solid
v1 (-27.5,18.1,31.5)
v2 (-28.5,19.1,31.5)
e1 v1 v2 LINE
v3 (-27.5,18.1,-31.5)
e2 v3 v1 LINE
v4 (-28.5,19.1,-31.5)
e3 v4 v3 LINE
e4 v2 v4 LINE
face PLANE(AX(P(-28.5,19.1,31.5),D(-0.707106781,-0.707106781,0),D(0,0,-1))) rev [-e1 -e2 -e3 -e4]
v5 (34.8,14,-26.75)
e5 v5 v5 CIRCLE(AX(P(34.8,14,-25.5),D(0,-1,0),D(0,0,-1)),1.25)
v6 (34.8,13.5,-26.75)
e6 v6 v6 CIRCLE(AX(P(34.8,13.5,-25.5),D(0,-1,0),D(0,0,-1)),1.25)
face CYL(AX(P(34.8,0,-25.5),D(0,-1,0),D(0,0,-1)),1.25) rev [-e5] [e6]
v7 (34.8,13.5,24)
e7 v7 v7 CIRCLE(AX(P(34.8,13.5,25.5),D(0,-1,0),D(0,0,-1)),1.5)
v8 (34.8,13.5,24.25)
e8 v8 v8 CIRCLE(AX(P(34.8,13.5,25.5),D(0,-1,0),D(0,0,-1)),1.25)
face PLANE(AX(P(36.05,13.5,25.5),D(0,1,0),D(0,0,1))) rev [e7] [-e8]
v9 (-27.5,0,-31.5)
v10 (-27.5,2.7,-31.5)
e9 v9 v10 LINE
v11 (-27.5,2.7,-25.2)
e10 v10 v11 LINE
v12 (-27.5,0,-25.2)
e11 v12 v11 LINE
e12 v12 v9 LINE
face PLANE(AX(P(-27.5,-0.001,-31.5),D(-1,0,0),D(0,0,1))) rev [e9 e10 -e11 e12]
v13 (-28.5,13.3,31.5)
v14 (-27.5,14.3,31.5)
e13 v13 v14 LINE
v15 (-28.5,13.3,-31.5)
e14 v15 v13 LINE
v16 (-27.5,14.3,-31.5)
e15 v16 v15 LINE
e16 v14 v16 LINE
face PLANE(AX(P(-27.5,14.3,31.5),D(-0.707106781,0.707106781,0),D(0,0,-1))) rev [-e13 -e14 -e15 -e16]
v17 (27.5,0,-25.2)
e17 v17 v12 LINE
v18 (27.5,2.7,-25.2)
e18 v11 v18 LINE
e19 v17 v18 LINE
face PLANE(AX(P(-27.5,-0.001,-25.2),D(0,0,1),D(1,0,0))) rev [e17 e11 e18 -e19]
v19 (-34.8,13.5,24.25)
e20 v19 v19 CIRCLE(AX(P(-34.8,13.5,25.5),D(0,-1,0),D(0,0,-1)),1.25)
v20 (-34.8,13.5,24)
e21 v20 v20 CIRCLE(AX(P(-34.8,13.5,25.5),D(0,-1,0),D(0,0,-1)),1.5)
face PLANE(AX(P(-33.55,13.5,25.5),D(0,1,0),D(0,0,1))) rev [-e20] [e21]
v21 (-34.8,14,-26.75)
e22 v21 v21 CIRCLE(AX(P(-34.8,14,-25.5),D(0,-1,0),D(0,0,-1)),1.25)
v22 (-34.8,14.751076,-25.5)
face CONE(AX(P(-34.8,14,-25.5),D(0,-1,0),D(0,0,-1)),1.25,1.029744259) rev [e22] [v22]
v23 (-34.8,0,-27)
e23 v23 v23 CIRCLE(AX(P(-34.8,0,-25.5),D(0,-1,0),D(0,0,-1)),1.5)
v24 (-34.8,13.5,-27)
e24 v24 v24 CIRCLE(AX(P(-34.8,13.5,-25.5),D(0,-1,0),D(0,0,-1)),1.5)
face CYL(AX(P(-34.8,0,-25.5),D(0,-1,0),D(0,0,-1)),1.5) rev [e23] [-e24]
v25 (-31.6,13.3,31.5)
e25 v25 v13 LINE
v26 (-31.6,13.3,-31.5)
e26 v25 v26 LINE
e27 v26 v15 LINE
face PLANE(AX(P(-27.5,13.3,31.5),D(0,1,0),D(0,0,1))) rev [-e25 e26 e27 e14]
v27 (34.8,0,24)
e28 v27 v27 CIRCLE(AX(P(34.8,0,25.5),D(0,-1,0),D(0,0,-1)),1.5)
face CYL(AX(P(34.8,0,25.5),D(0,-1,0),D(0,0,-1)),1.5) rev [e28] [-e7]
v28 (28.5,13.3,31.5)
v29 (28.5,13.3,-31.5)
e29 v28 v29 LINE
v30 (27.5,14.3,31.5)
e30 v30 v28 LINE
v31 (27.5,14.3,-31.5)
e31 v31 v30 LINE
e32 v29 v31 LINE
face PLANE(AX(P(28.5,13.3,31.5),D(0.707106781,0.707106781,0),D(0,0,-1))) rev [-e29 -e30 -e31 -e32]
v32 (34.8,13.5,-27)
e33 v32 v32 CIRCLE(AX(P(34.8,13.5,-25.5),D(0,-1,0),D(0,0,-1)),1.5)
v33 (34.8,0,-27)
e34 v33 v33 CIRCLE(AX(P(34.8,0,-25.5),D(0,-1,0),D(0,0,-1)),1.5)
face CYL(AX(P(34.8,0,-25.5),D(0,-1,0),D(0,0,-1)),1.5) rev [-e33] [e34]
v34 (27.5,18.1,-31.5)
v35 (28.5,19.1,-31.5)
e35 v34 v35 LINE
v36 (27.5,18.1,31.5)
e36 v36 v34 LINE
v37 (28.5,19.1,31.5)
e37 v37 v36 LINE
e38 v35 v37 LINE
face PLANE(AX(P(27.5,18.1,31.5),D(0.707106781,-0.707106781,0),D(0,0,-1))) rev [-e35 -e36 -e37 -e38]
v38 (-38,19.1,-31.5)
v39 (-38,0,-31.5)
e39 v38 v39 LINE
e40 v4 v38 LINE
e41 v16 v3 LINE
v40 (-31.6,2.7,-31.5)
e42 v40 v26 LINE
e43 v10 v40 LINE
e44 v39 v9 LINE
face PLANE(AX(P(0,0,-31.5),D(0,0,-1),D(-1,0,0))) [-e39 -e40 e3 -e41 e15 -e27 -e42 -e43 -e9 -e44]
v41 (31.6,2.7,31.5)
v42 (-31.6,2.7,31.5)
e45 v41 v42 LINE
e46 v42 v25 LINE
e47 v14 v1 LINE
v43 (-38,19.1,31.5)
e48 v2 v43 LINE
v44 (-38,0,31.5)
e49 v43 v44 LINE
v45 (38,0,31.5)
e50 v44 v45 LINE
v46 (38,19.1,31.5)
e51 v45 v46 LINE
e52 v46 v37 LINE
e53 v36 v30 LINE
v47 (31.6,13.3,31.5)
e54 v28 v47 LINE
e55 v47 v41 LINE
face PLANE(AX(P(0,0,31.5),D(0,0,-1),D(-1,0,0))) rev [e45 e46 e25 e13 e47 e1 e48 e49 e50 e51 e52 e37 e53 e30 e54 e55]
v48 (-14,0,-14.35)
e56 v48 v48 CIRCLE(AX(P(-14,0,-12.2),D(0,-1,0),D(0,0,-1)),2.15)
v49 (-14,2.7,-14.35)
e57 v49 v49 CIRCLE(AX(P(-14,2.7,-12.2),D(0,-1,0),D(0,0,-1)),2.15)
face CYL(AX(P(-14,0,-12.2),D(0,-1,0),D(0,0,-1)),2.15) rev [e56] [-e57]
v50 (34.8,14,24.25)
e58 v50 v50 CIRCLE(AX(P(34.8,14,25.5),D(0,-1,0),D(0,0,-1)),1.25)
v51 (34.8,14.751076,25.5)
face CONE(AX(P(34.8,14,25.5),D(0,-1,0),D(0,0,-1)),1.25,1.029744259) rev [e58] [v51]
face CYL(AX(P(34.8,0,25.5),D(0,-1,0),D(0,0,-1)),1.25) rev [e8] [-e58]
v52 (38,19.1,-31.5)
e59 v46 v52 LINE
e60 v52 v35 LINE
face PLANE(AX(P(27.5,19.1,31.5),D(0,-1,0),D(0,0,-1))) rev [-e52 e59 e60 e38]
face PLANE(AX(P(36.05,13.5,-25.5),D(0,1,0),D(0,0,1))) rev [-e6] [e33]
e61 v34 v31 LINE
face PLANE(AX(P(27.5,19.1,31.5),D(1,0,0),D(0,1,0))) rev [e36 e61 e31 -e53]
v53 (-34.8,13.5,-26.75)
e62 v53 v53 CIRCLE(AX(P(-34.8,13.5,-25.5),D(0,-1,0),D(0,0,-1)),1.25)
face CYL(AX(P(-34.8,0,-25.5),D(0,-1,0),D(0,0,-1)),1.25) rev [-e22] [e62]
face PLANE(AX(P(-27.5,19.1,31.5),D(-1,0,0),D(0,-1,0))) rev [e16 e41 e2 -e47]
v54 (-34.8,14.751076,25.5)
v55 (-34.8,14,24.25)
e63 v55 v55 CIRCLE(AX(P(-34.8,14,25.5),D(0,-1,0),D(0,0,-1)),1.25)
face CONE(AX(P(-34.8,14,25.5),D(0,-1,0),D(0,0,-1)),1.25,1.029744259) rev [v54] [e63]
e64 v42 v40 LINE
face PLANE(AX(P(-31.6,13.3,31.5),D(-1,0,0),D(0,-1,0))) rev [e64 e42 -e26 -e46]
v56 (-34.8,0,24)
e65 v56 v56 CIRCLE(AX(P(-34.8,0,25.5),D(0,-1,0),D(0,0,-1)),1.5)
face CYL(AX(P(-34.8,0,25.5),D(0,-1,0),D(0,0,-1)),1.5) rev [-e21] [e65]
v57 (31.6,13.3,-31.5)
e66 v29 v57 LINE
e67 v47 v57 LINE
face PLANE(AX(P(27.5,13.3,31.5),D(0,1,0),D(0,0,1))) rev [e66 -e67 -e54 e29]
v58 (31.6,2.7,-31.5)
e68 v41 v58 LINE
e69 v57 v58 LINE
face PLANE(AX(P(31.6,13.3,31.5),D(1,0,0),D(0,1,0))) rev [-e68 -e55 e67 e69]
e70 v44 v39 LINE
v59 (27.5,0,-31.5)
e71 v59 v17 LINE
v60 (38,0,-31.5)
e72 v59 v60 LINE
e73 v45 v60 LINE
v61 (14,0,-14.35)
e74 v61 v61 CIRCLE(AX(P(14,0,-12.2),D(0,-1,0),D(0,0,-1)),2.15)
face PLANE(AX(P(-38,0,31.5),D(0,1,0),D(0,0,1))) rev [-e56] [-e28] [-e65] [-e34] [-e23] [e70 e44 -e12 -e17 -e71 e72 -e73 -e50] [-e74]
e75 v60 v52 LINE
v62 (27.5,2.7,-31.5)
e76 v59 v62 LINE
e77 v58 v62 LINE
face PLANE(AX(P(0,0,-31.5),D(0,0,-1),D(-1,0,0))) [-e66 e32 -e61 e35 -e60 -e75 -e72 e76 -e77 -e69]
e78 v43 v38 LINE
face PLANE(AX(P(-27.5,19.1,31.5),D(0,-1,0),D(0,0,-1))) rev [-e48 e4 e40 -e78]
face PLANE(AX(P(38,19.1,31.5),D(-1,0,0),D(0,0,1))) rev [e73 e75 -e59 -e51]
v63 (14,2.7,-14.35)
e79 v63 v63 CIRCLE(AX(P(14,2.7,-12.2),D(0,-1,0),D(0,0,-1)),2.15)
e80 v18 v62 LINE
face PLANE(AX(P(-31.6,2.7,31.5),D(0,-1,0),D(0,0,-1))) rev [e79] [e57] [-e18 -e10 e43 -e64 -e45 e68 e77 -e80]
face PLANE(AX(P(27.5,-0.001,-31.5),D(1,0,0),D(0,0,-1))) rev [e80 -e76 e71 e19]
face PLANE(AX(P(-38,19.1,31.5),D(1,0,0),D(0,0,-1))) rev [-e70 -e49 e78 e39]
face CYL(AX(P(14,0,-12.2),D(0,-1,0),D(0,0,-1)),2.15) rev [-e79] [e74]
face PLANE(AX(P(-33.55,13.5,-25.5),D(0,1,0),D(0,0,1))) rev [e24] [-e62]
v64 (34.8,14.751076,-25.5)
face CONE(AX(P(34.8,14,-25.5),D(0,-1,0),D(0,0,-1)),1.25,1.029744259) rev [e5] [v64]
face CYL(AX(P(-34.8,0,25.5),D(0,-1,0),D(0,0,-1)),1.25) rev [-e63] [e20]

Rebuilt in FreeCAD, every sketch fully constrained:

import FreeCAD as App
import Part
import Sketcher

V = App.Vector
Q = App.Units.Quantity


def edges_at(feature, points):
    """Names of the edges that pass closest to the given points."""
    edges = feature.Shape.Edges
    near = lambda p: min(range(len(edges)), key=lambda i: edges[i].distToShape(Part.Vertex(*p))[0])
    return sorted({f"Edge{near(p) + 1}" for p in points})


def add_polygon(sketch, points):
    """Adds a closed chain of lines whose ends are joined by coincident constraints."""
    first, n = sketch.GeometryCount, len(points)
    for a, b in zip(points, points[1:] + points[:1]):
        sketch.addGeometry(Part.LineSegment(App.Vector(*a, 0), App.Vector(*b, 0)), False)
    for i in range(n):
        sketch.addConstraint(Sketcher.Constraint("Coincident", first + i, 2, first + (i + 1) % n, 1))

doc = App.newDocument("Part")
body = doc.addObject("PartDesign::Body", "Body")

# Sketch on XY plane
sketch1 = doc.addObject("Sketcher::SketchObject", "Sketch")
body.addObject(sketch1)
sketch1.AttachmentSupport = (doc.XY_Plane, [""])
sketch1.MapMode = "FlatFace"
add_polygon(sketch1, [(-27.5, 19.1), (-38, 19.1), (-38, 0), (38, 0), (38, 19.1), (27.5, 19.1), (27.5, 13.3), (31.6, 13.3), (31.6, 2.7), (-31.6, 2.7), (-31.6, 13.3), (-27.5, 13.3)])  # lines 0-11
sketch1.addConstraint([
    Sketcher.Constraint("Horizontal", 0),
    Sketcher.Constraint("Vertical", 1),
    Sketcher.Constraint("Horizontal", 2),
    Sketcher.Constraint("Vertical", 3),
    Sketcher.Constraint("Horizontal", 4),
    Sketcher.Constraint("Vertical", 5),
    Sketcher.Constraint("Horizontal", 6),
    Sketcher.Constraint("Vertical", 7),
    Sketcher.Constraint("Horizontal", 8),
    Sketcher.Constraint("Vertical", 9),
    Sketcher.Constraint("Horizontal", 10),
    Sketcher.Constraint("Vertical", 11),
    Sketcher.Constraint("Symmetric", 1, 2, 2, 2, -1, 1),
    Sketcher.Constraint("Symmetric", 6, 2, 9, 2, -2),
    Sketcher.Constraint("Symmetric", 4, 2, 11, 2, -2),
    Sketcher.Constraint("DistanceX", 2, 1, 2, 2, Q("76 mm")),
    Sketcher.Constraint("DistanceX", 0, 2, 0, 1, Q("10.5 mm")),
    Sketcher.Constraint("DistanceX", 6, 1, 6, 2, Q("4.1 mm")),
    Sketcher.Constraint("DistanceY", 1, 2, 1, 1, Q("19.1 mm")),
    Sketcher.Constraint("DistanceY", 5, 2, 5, 1, Q("5.8 mm")),
    Sketcher.Constraint("DistanceY", 7, 2, 7, 1, Q("10.6 mm")),
])
pad1 = doc.addObject("PartDesign::Pad", "Pad")
body.addObject(pad1)
pad1.Profile = sketch1
pad1.Length = 63
pad1.Midplane = True

# Sketch on XZ plane
sketch2 = doc.addObject("Sketcher::SketchObject", "Sketch001")
body.addObject(sketch2)
sketch2.AttachmentSupport = (doc.XZ_Plane, [""])
sketch2.MapMode = "FlatFace"
sketch2.addGeometry([
    Part.Circle(V(-34.8, -25.5, 0), V(0, 0, 1), 1.2),
    Part.Circle(V(-34.8, 25.5, 0), V(0, 0, 1), 1.2),
    Part.Circle(V(34.8, 25.5, 0), V(0, 0, 1), 1.2),
    Part.Circle(V(34.8, -25.5, 0), V(0, 0, 1), 1.2),
], False)
sketch2.addConstraint([
    Sketcher.Constraint("Equal", 0, 1),
    Sketcher.Constraint("Equal", 1, 2),
    Sketcher.Constraint("Equal", 2, 3),
    Sketcher.Constraint("Symmetric", 0, 3, 2, 3, -1, 1),
    Sketcher.Constraint("Symmetric", 1, 3, 3, 3, -1, 1),
    Sketcher.Constraint("Symmetric", 1, 3, 2, 3, -2),
    Sketcher.Constraint("Diameter", 0, Q("2.5 mm")),
    Sketcher.Constraint("DistanceY", 0, 3, 1, 3, Q("51 mm")),
    Sketcher.Constraint("DistanceX", 0, 3, -1, 1, Q("34.8 mm")),
])
doc.recompute()
hole = doc.addObject("PartDesign::Hole", "Hole")
body.addObject(hole)
hole.Profile = sketch2
hole.ThreadType = "None"
hole.Diameter = 2.5
hole.DepthType = "Dimension"
hole.Depth = 14
hole.DrillPoint = "Angled"
hole.DrillPointAngle = 118
hole.HoleCutType = "Counterbore"
hole.HoleCutDiameter = 3
hole.HoleCutDepth = 13.5

# Sketch on XZ plane
sketch3 = doc.addObject("Sketcher::SketchObject", "Sketch002")
body.addObject(sketch3)
sketch3.AttachmentSupport = (doc.XZ_Plane, [""])
sketch3.MapMode = "FlatFace"
sketch3.addGeometry([
    Part.Circle(V(14, -12.2, 0), V(0, 0, 1), 2.1),
    Part.Circle(V(-14, -12.2, 0), V(0, 0, 1), 2.1),
], False)
sketch3.addConstraint([
    Sketcher.Constraint("Equal", 0, 1),
    Sketcher.Constraint("Symmetric", 0, 3, 1, 3, -2),
    Sketcher.Constraint("Diameter", 0, Q("4.3 mm")),
    Sketcher.Constraint("DistanceX", -1, 1, 0, 3, Q("14 mm")),
    Sketcher.Constraint("DistanceY", 0, 3, -1, 1, Q("12.2 mm")),
])
doc.recompute()
hole2 = doc.addObject("PartDesign::Hole", "Hole001")
body.addObject(hole2)
hole2.Profile = sketch3
hole2.ThreadType = "None"
hole2.Diameter = 4.3
hole2.DepthType = "ThroughAll"

# Sketch on XZ plane
sketch4 = doc.addObject("Sketcher::SketchObject", "Sketch003")
body.addObject(sketch4)
sketch4.AttachmentSupport = (doc.XZ_Plane, [""])
sketch4.MapMode = "FlatFace"
sketch4.AttachmentOffset = App.Placement(V(0, 0, -2.7), App.Rotation())
add_polygon(sketch4, [(-28, -32), (-28, -25), (28, -25), (28, -32)])  # lines 0-3
sketch4.addConstraint([
    Sketcher.Constraint("Vertical", 0),
    Sketcher.Constraint("Horizontal", 1),
    Sketcher.Constraint("Vertical", 2),
    Sketcher.Constraint("Horizontal", 3),
    Sketcher.Constraint("DistanceX", 1, 1, 1, 2, Q("55 mm")),
    Sketcher.Constraint("DistanceY", 0, 1, 0, 2, Q("6.3 mm")),
    Sketcher.Constraint("DistanceX", 0, 2, -1, 1, Q("27.5 mm")),
    Sketcher.Constraint("DistanceY", 0, 2, -1, 1, Q("25.2 mm")),
])
pocket1 = doc.addObject("PartDesign::Pocket", "Pocket")
body.addObject(pocket1)
pocket1.Profile = sketch4
pocket1.Type = "UpToFirst"
pocket1.Reversed = True
doc.recompute()

chamfer = doc.addObject("PartDesign::Chamfer", "Chamfer")
body.addObject(chamfer)
chamfer.Base = (pocket1, edges_at(pocket1, [
    (-27.5, 13.3, 0),
    (27.5, 13.3, 0),
    (27.5, 19.1, 0),
    (-27.5, 19.1, 0),
]))
chamfer.Size = 1

doc.recompute()
